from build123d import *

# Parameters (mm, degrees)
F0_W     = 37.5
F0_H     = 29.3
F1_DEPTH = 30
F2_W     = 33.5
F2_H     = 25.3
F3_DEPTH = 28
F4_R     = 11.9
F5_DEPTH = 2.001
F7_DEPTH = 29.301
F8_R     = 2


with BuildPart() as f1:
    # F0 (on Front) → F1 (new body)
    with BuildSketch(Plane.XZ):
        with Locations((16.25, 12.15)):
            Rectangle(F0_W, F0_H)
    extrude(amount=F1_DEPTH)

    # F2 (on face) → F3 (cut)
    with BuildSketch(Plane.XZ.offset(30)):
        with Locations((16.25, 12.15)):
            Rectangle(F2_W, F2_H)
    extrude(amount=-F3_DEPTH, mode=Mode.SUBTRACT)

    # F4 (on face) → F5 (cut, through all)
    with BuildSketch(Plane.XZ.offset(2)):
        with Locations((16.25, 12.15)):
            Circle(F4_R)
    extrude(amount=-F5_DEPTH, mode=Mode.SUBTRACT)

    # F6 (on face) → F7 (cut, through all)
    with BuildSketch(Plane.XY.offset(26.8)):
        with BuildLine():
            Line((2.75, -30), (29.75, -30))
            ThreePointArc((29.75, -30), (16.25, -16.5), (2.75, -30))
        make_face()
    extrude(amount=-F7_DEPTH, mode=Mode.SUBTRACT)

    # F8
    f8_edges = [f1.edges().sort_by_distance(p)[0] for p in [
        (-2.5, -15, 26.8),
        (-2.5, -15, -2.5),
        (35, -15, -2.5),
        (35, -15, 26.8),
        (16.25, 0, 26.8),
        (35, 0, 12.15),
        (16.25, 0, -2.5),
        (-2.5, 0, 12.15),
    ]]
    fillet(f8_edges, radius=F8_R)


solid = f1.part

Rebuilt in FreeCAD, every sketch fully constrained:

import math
import FreeCAD as App
import Part
import Sketcher
from FreeCAD import Vector


def edges_at(feature, points):
    """Names of the edges that pass closest to the given points."""
    edges = feature.Shape.Edges
    near = lambda p: min(range(len(edges)), key=lambda i: edges[i].distToShape(Part.Vertex(*p))[0])
    return sorted({f"Edge{near(p) + 1}" for p in points})


def add_polygon(sketch, points):
    """Adds a closed chain of lines whose ends are joined by coincident constraints."""
    first, n = sketch.GeometryCount, len(points)
    for a, b in zip(points, points[1:] + points[:1]):
        sketch.addGeometry(Part.LineSegment(App.Vector(*a, 0), App.Vector(*b, 0)), False)
    for i in range(n):
        sketch.addConstraint(Sketcher.Constraint("Coincident", first + i, 2, first + (i + 1) % n, 1))

doc = App.newDocument("Part")
body = doc.addObject("PartDesign::Body", "Body")

sketch1 = doc.addObject("Sketcher::SketchObject", "Sketch")
body.addObject(sketch1)
sketch1.AttachmentSupport = (doc.XZ_Plane, [""])
sketch1.MapMode = "FlatFace"
add_polygon(sketch1, [(-2, 27), (-2, -2), (35, -2), (35, 27)])
sketch1.addConstraint([
    Sketcher.Constraint("Vertical", 0),
    Sketcher.Constraint("Horizontal", 1),
    Sketcher.Constraint("Vertical", 2),
    Sketcher.Constraint("Horizontal", 3),
    Sketcher.Constraint("DistanceX", 1, 1, 1, 2, 37.5),
    Sketcher.Constraint("DistanceY", 0, 2, 0, 1, 29.3),
    Sketcher.Constraint("DistanceX", -1, 1, 1, 2, 35.0),
    Sketcher.Constraint("DistanceY", 0, 2, -1, 1, 2.5),
])
pad1 = doc.addObject("PartDesign::Pad", "Pad")
body.addObject(pad1)
pad1.Profile = sketch1
pad1.Length = 30

sketch2 = doc.addObject("Sketcher::SketchObject", "Sketch001")
body.addObject(sketch2)
sketch2.AttachmentSupport = (doc.XZ_Plane, [""])
sketch2.MapMode = "FlatFace"
sketch2.AttachmentOffset = App.Placement(Vector(0, 0, 30), App.Rotation())
add_polygon(sketch2, [(0, 25), (0, 0), (33, 0), (33, 25)])
sketch2.addConstraint([
    Sketcher.Constraint("Vertical", 0),
    Sketcher.Constraint("Horizontal", 1),
    Sketcher.Constraint("Vertical", 2),
    Sketcher.Constraint("Horizontal", 3),
    Sketcher.Constraint("DistanceX", 1, 1, 1, 2, 33.5),
    Sketcher.Constraint("DistanceY", 0, 2, 0, 1, 25.3),
    Sketcher.Constraint("DistanceX", -1, 1, 1, 2, 33.0),
    Sketcher.Constraint("DistanceY", 0, 2, -1, 1, 0.5),
])
pocket1 = doc.addObject("PartDesign::Pocket", "Pocket")
body.addObject(pocket1)
pocket1.Profile = sketch2
pocket1.Length = 28

sketch3 = doc.addObject("Sketcher::SketchObject", "Sketch002")
body.addObject(sketch3)
sketch3.AttachmentSupport = (doc.XZ_Plane, [""])
sketch3.MapMode = "FlatFace"
sketch3.AttachmentOffset = App.Placement(Vector(0, 0, 2), App.Rotation())
sketch3.addGeometry(Part.Circle(Vector(16, 12, 0), Vector(0, 0, 1), 12), False)
sketch3.addConstraint([
    Sketcher.Constraint("Diameter", 0, 23.8),
    Sketcher.Constraint("DistanceX", -1, 1, 0, 3, 16.25),
    Sketcher.Constraint("DistanceY", -1, 1, 0, 3, 12.15),
])
pocket2 = doc.addObject("PartDesign::Pocket", "Pocket001")
body.addObject(pocket2)
pocket2.Profile = sketch3
pocket2.Type = "ThroughAll"

sketch4 = doc.addObject("Sketcher::SketchObject", "Sketch003")
body.addObject(sketch4)
sketch4.AttachmentSupport = (doc.XY_Plane, [""])
sketch4.MapMode = "FlatFace"
sketch4.AttachmentOffset = App.Placement(Vector(0, 0, 26.8), App.Rotation())
sketch4.addGeometry([
    Part.LineSegment(Vector(3, -30, 0), Vector(30, -30, 0)),
    Part.ArcOfCircle(Part.Circle(Vector(16, -30, 0), Vector(0, 0, 1), 14), math.radians(0), math.radians(180)),
], False)
sketch4.addConstraint([
    Sketcher.Constraint("Coincident", 0, 1, 1, 2),
    Sketcher.Constraint("Coincident", 1, 1, 0, 2),
    Sketcher.Constraint("Horizontal", 0),
    Sketcher.Constraint("Horizontal", 1, 3, 0, 1),
    Sketcher.Constraint("Radius", 1, 13.5),
    Sketcher.Constraint("DistanceY", 1, 3, -1, 1, 30.0),
    Sketcher.Constraint("DistanceX", -1, 1, 1, 3, 16.25),
])
pocket3 = doc.addObject("PartDesign::Pocket", "Pocket002")
body.addObject(pocket3)
pocket3.Profile = sketch4
pocket3.Type = "ThroughAll"
doc.recompute()

fillet = doc.addObject("PartDesign::Fillet", "Fillet")
body.addObject(fillet)
fillet.Base = (pocket3, edges_at(pocket3, [
    (-2.5, -15, 26.8),
    (-2.5, -15, -2.5),
    (35, -15, -2.5),
    (35, -15, 26.8),
    (16.25, 0, 26.8),
    (35, 0, 12.15),
    (16.25, 0, -2.5),
    (-2.5, 0, 12.15),
]))
fillet.Radius = 2

doc.recompute()
